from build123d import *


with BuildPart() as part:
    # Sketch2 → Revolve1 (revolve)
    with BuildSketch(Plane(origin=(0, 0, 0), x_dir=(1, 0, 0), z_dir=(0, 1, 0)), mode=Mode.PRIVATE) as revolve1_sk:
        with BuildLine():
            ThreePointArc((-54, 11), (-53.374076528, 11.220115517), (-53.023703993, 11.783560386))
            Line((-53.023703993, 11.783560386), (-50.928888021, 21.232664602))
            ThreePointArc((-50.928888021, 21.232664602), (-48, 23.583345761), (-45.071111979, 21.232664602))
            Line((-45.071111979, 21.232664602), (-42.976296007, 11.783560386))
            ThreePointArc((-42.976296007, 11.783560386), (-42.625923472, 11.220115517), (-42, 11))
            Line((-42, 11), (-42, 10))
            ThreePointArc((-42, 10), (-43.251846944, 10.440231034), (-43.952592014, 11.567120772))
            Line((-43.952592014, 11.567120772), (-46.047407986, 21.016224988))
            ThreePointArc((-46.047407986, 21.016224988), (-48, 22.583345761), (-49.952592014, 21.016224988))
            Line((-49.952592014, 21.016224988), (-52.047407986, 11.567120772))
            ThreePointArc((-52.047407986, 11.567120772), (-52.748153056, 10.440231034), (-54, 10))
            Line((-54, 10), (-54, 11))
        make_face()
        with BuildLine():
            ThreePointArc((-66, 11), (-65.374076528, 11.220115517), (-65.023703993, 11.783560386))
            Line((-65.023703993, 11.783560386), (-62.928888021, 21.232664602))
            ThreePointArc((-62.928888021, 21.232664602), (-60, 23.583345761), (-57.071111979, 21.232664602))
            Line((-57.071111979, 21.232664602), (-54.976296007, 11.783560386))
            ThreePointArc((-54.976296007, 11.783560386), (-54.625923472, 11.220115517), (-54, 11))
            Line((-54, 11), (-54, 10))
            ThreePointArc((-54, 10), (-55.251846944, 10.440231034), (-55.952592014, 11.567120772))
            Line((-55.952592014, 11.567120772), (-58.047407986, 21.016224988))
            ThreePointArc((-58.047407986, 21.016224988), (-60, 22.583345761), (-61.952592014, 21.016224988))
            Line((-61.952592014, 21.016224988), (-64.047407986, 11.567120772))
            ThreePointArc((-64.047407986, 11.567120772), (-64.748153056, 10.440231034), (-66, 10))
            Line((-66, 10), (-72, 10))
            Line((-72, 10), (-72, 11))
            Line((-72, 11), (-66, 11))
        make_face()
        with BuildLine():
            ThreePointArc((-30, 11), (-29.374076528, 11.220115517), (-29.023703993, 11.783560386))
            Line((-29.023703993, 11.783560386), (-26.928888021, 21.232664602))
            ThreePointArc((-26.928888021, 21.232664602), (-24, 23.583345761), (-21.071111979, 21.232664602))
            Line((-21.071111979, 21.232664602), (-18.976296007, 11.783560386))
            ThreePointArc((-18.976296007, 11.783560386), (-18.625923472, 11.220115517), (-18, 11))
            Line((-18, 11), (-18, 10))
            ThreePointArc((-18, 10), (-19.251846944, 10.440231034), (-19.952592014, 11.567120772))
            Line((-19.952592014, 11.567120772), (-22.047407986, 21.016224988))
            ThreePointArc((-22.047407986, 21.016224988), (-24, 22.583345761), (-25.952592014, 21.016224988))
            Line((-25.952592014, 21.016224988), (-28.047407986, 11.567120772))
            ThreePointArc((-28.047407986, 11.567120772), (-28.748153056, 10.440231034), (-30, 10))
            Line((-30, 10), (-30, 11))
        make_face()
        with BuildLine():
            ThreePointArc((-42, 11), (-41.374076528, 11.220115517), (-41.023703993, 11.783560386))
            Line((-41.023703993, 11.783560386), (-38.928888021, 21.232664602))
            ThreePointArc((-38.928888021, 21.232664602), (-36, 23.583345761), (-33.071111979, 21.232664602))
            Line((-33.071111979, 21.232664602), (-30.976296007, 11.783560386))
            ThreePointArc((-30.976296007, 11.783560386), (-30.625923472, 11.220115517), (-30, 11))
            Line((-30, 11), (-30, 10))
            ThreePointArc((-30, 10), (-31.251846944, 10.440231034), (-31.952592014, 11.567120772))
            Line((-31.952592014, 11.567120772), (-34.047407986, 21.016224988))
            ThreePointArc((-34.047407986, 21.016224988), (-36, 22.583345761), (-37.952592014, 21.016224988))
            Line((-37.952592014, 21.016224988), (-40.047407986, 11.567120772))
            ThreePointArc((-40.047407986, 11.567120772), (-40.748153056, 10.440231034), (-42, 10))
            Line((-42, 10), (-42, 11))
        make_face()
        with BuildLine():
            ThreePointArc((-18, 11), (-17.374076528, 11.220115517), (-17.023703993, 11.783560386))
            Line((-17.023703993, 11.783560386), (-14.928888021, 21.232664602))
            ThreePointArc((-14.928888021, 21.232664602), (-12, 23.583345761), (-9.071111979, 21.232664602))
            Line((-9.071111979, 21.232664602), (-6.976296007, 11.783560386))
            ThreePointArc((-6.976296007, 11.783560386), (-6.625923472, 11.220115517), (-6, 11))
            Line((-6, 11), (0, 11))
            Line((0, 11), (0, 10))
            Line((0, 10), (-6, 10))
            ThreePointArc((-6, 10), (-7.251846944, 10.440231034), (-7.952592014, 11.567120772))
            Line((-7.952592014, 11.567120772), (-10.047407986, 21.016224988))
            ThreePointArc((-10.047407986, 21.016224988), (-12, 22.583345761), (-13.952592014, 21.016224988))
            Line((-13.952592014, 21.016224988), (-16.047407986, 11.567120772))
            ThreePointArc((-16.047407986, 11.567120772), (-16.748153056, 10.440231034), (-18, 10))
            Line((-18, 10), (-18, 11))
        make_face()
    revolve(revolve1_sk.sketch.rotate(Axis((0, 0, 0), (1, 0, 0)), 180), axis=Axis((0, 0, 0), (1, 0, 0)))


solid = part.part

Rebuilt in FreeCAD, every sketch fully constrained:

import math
import FreeCAD as App
import Part
import Sketcher

V = App.Vector
Q = App.Units.Quantity

doc = App.newDocument("Part")
body = doc.addObject("PartDesign::Body", "Body")

# Sketch on XZ plane
sketch1 = body.newObject("Sketcher::SketchObject", "Sketch")
sketch1.AttachmentSupport = (doc.getObject("XZ_Plane"), [""])
sketch1.MapMode = "FlatFace"
sketch1.addGeometry([
    Part.ArcOfCircle(Part.Circle(V(-54, -12, 0), V(0, 0, 1), 1), math.radians(13), math.radians(90)),  # 0
    Part.ArcOfCircle(Part.Circle(V(-54, -12, 0), V(0, 0, 1), 1), math.radians(90), math.radians(167)),  # 1
    Part.LineSegment(V(-55, -11.8, 0), V(-57.1, -21.2, 0)),  # 2
    Part.ArcOfCircle(Part.Circle(V(-60, -20.6, 0), V(0, 0, 1), 3), math.radians(-168), math.radians(-12)),  # 3
    Part.LineSegment(V(-62.9, -21.2, 0), V(-65, -11.8, 0)),  # 4
    Part.ArcOfCircle(Part.Circle(V(-66, -12, 0), V(0, 0, 1), 1), math.radians(13), math.radians(90)),  # 5
    Part.LineSegment(V(-66, -11, 0), V(-72, -11, 0)),  # 6
    Part.LineSegment(V(-72, -11, 0), V(-72, -10, 0)),  # 7
    Part.LineSegment(V(-72, -10, 0), V(-66, -10, 0)),  # 8
    Part.ArcOfCircle(Part.Circle(V(-66, -12, 0), V(0, 0, 1), 2), math.radians(13), math.radians(90)),  # 9
    Part.LineSegment(V(-64, -11.6, 0), V(-62, -21, 0)),  # 10
    Part.ArcOfCircle(Part.Circle(V(-60, -20.6, 0), V(0, 0, 1), 2), math.radians(-168), math.radians(-12)),  # 11
    Part.LineSegment(V(-58, -21, 0), V(-56, -11.6, 0)),  # 12
    Part.ArcOfCircle(Part.Circle(V(-54, -12, 0), V(0, 0, 1), 2), math.radians(90), math.radians(167)),  # 13
    Part.ArcOfCircle(Part.Circle(V(-54, -12, 0), V(0, 0, 1), 2), math.radians(13), math.radians(90)),  # 14
    Part.LineSegment(V(-52, -11.6, 0), V(-50, -21, 0)),  # 15
    Part.ArcOfCircle(Part.Circle(V(-48, -20.6, 0), V(0, 0, 1), 2), math.radians(-168), math.radians(-12)),  # 16
    Part.LineSegment(V(-46, -21, 0), V(-44, -11.6, 0)),  # 17
    Part.ArcOfCircle(Part.Circle(V(-42, -12, 0), V(0, 0, 1), 2), math.radians(90), math.radians(167)),  # 18
    Part.ArcOfCircle(Part.Circle(V(-42, -12, 0), V(0, 0, 1), 2), math.radians(13), math.radians(90)),  # 19
    Part.LineSegment(V(-40, -11.6, 0), V(-38, -21, 0)),  # 20
    Part.ArcOfCircle(Part.Circle(V(-36, -20.6, 0), V(0, 0, 1), 2), math.radians(-168), math.radians(-12)),  # 21
    Part.LineSegment(V(-34, -21, 0), V(-32, -11.6, 0)),  # 22
    Part.ArcOfCircle(Part.Circle(V(-30, -12, 0), V(0, 0, 1), 2), math.radians(90), math.radians(167)),  # 23
    Part.ArcOfCircle(Part.Circle(V(-30, -12, 0), V(0, 0, 1), 2), math.radians(13), math.radians(90)),  # 24
    Part.LineSegment(V(-28, -11.6, 0), V(-26, -21, 0)),  # 25
    Part.ArcOfCircle(Part.Circle(V(-24, -20.6, 0), V(0, 0, 1), 2), math.radians(-168), math.radians(-12)),  # 26
    Part.LineSegment(V(-22, -21, 0), V(-20, -11.6, 0)),  # 27
    Part.ArcOfCircle(Part.Circle(V(-18, -12, 0), V(0, 0, 1), 2), math.radians(90), math.radians(167)),  # 28
    Part.ArcOfCircle(Part.Circle(V(-18, -12, 0), V(0, 0, 1), 2), math.radians(13), math.radians(90)),  # 29
    Part.LineSegment(V(-16, -11.6, 0), V(-14, -21, 0)),  # 30
    Part.ArcOfCircle(Part.Circle(V(-12, -20.6, 0), V(0, 0, 1), 2), math.radians(-168), math.radians(-12)),  # 31
    Part.LineSegment(V(-10, -21, 0), V(-8, -11.6, 0)),  # 32
    Part.ArcOfCircle(Part.Circle(V(-6, -12, 0), V(0, 0, 1), 2), math.radians(90), math.radians(167)),  # 33
    Part.LineSegment(V(-6, -10, 0), V(0, -10, 0)),  # 34
    Part.LineSegment(V(0, -10, 0), V(0, -11, 0)),  # 35
    Part.LineSegment(V(0, -11, 0), V(-6, -11, 0)),  # 36
    Part.ArcOfCircle(Part.Circle(V(-6, -12, 0), V(0, 0, 1), 1), math.radians(90), math.radians(167)),  # 37
    Part.LineSegment(V(-7, -11.8, 0), V(-9.1, -21.2, 0)),  # 38
    Part.ArcOfCircle(Part.Circle(V(-12, -20.6, 0), V(0, 0, 1), 3), math.radians(-168), math.radians(-12)),  # 39
    Part.LineSegment(V(-14.9, -21.2, 0), V(-17, -11.8, 0)),  # 40
    Part.ArcOfCircle(Part.Circle(V(-18, -12, 0), V(0, 0, 1), 1), math.radians(13), math.radians(90)),  # 41
    Part.ArcOfCircle(Part.Circle(V(-18, -12, 0), V(0, 0, 1), 1), math.radians(90), math.radians(167)),  # 42
    Part.LineSegment(V(-19, -11.8, 0), V(-21.1, -21.2, 0)),  # 43
    Part.ArcOfCircle(Part.Circle(V(-24, -20.6, 0), V(0, 0, 1), 3), math.radians(-168), math.radians(-12)),  # 44
    Part.LineSegment(V(-26.9, -21.2, 0), V(-29, -11.8, 0)),  # 45
    Part.ArcOfCircle(Part.Circle(V(-30, -12, 0), V(0, 0, 1), 1), math.radians(13), math.radians(90)),  # 46
    Part.ArcOfCircle(Part.Circle(V(-30, -12, 0), V(0, 0, 1), 1), math.radians(90), math.radians(167)),  # 47
    Part.LineSegment(V(-31, -11.8, 0), V(-33.1, -21.2, 0)),  # 48
    Part.ArcOfCircle(Part.Circle(V(-36, -20.6, 0), V(0, 0, 1), 3), math.radians(-168), math.radians(-12)),  # 49
    Part.LineSegment(V(-38.9, -21.2, 0), V(-41, -11.8, 0)),  # 50
    Part.ArcOfCircle(Part.Circle(V(-42, -12, 0), V(0, 0, 1), 1), math.radians(13), math.radians(90)),  # 51
    Part.ArcOfCircle(Part.Circle(V(-42, -12, 0), V(0, 0, 1), 1), math.radians(90), math.radians(167)),  # 52
    Part.LineSegment(V(-43, -11.8, 0), V(-45.1, -21.2, 0)),  # 53
    Part.ArcOfCircle(Part.Circle(V(-48, -20.6, 0), V(0, 0, 1), 3), math.radians(-168), math.radians(-12)),  # 54
    Part.LineSegment(V(-50.9, -21.2, 0), V(-53, -11.8, 0)),  # 55
], False)
sketch1.addConstraint([
    Sketcher.Constraint("Tangent", 0, 2, 1, 1),
    Sketcher.Constraint("Tangent", 1, 2, 2, 1),
    Sketcher.Constraint("Tangent", 2, 2, 3, 2),
    Sketcher.Constraint("Tangent", 3, 1, 4, 1),
    Sketcher.Constraint("Tangent", 4, 2, 5, 1),
    Sketcher.Constraint("Tangent", 5, 2, 6, 1),
    Sketcher.Constraint("Coincident", 6, 2, 7, 1),
    Sketcher.Constraint("Coincident", 7, 2, 8, 1),
    Sketcher.Constraint("Tangent", 8, 2, 9, 2),
    Sketcher.Constraint("Tangent", 9, 1, 10, 1),
    Sketcher.Constraint("Tangent", 10, 2, 11, 1),
    Sketcher.Constraint("Tangent", 11, 2, 12, 1),
    Sketcher.Constraint("Tangent", 12, 2, 13, 2),
    Sketcher.Constraint("Tangent", 13, 1, 14, 2),
    Sketcher.Constraint("Tangent", 14, 1, 15, 1),
    Sketcher.Constraint("Tangent", 15, 2, 16, 1),
    Sketcher.Constraint("Tangent", 16, 2, 17, 1),
    Sketcher.Constraint("Tangent", 17, 2, 18, 2),
    Sketcher.Constraint("Tangent", 18, 1, 19, 2),
    Sketcher.Constraint("Tangent", 19, 1, 20, 1),
    Sketcher.Constraint("Tangent", 20, 2, 21, 1),
    Sketcher.Constraint("Tangent", 21, 2, 22, 1),
    Sketcher.Constraint("Tangent", 22, 2, 23, 2),
    Sketcher.Constraint("Tangent", 23, 1, 24, 2),
    Sketcher.Constraint("Tangent", 24, 1, 25, 1),
    Sketcher.Constraint("Tangent", 25, 2, 26, 1),
    Sketcher.Constraint("Tangent", 26, 2, 27, 1),
    Sketcher.Constraint("Tangent", 27, 2, 28, 2),
    Sketcher.Constraint("Tangent", 28, 1, 29, 2),
    Sketcher.Constraint("Tangent", 29, 1, 30, 1),
    Sketcher.Constraint("Tangent", 30, 2, 31, 1),
    Sketcher.Constraint("Tangent", 31, 2, 32, 1),
    Sketcher.Constraint("Tangent", 32, 2, 33, 2),
    Sketcher.Constraint("Tangent", 33, 1, 34, 1),
    Sketcher.Constraint("Coincident", 34, 2, 35, 1),
    Sketcher.Constraint("Coincident", 35, 2, 36, 1),
    Sketcher.Constraint("Tangent", 36, 2, 37, 1),
    Sketcher.Constraint("Tangent", 37, 2, 38, 1),
    Sketcher.Constraint("Tangent", 38, 2, 39, 2),
    Sketcher.Constraint("Tangent", 39, 1, 40, 1),
    Sketcher.Constraint("Tangent", 40, 2, 41, 1),
    Sketcher.Constraint("Tangent", 41, 2, 42, 1),
    Sketcher.Constraint("Tangent", 42, 2, 43, 1),
    Sketcher.Constraint("Tangent", 43, 2, 44, 2),
    Sketcher.Constraint("Tangent", 44, 1, 45, 1),
    Sketcher.Constraint("Tangent", 45, 2, 46, 1),
    Sketcher.Constraint("Tangent", 46, 2, 47, 1),
    Sketcher.Constraint("Tangent", 47, 2, 48, 1),
    Sketcher.Constraint("Tangent", 48, 2, 49, 2),
    Sketcher.Constraint("Tangent", 49, 1, 50, 1),
    Sketcher.Constraint("Tangent", 50, 2, 51, 1),
    Sketcher.Constraint("Tangent", 51, 2, 52, 1),
    Sketcher.Constraint("Tangent", 52, 2, 53, 1),
    Sketcher.Constraint("Tangent", 53, 2, 54, 2),
    Sketcher.Constraint("Tangent", 54, 1, 55, 1),
    Sketcher.Constraint("Tangent", 55, 2, 0, 1),
    Sketcher.Constraint("Horizontal", 6),
    Sketcher.Constraint("Vertical", 7),
    Sketcher.Constraint("Horizontal", 8),
    Sketcher.Constraint("Horizontal", 34),
    Sketcher.Constraint("Vertical", 35),
    Sketcher.Constraint("Horizontal", 36),
    Sketcher.Constraint("Coincident", 9, 3, 5, 3),
    Sketcher.Constraint("Coincident", 11, 3, 3, 3),
    Sketcher.Constraint("Coincident", 13, 3, 0, 3),
    Sketcher.Constraint("Coincident", 37, 3, 33, 3),
    Sketcher.Constraint("Coincident", 39, 3, 31, 3),
    Sketcher.Constraint("Coincident", 41, 3, 28, 3),
    Sketcher.Constraint("Coincident", 44, 3, 26, 3),
    Sketcher.Constraint("Coincident", 46, 3, 23, 3),
    Sketcher.Constraint("Coincident", 49, 3, 21, 3),
    Sketcher.Constraint("Coincident", 51, 3, 18, 3),
    Sketcher.Constraint("Coincident", 54, 3, 16, 3),
    Sketcher.Constraint("Equal", 0, 1),
    Sketcher.Constraint("Equal", 1, 5),
    Sketcher.Constraint("Equal", 9, 11),
    Sketcher.Constraint("Equal", 11, 13),
    Sketcher.Constraint("Equal", 13, 14),
    Sketcher.Constraint("Equal", 14, 16),
    Sketcher.Constraint("Equal", 16, 18),
    Sketcher.Constraint("Equal", 18, 19),
    Sketcher.Constraint("Equal", 19, 21),
    Sketcher.Constraint("Equal", 21, 23),
    Sketcher.Constraint("Equal", 23, 24),
    Sketcher.Constraint("Equal", 24, 26),
    Sketcher.Constraint("Equal", 26, 28),
    Sketcher.Constraint("Equal", 28, 29),
    Sketcher.Constraint("Equal", 29, 31),
    Sketcher.Constraint("Equal", 31, 33),
    Sketcher.Constraint("Equal", 5, 37),
    Sketcher.Constraint("Equal", 3, 39),
    Sketcher.Constraint("Equal", 37, 41),
    Sketcher.Constraint("Equal", 41, 42),
    Sketcher.Constraint("Equal", 39, 44),
    Sketcher.Constraint("Equal", 42, 46),
    Sketcher.Constraint("Equal", 46, 47),
    Sketcher.Constraint("Equal", 44, 49),
    Sketcher.Constraint("Equal", 47, 51),
    Sketcher.Constraint("Equal", 51, 52),
    Sketcher.Constraint("Equal", 49, 54),
    Sketcher.Constraint("PointOnObject", 34, 2, -2),
    Sketcher.Constraint("Parallel", 4, 10),
    Sketcher.Constraint("Parallel", 10, 15),
    Sketcher.Constraint("Parallel", 12, 17),
    Sketcher.Constraint("Parallel", 15, 20),
    Sketcher.Constraint("Parallel", 17, 22),
    Sketcher.Constraint("Parallel", 20, 25),
    Sketcher.Constraint("Parallel", 22, 27),
    Sketcher.Constraint("Parallel", 25, 30),
    Sketcher.Constraint("Parallel", 27, 32),
    Sketcher.Constraint("Horizontal", 1, 3, 5, 3),
    Sketcher.Constraint("Horizontal", 11, 3, 16, 3),
    Sketcher.Constraint("Horizontal", 14, 3, 18, 3),
    Sketcher.Constraint("Horizontal", 16, 3, 21, 3),
    Sketcher.Constraint("Horizontal", 19, 3, 23, 3),
    Sketcher.Constraint("Horizontal", 21, 3, 26, 3),
    Sketcher.Constraint("Horizontal", 24, 3, 28, 3),
    Sketcher.Constraint("Horizontal", 26, 3, 31, 3),
    Sketcher.Constraint("Horizontal", 29, 3, 33, 3),
    Sketcher.Constraint("Horizontal", 2, 2, 3, 1),
    Sketcher.Constraint("Vertical", 14, 3, 0, 2),
    Sketcher.Constraint("Vertical", 0, 2, 13, 1),
    Sketcher.Constraint("Vertical", 52, 3, 18, 1),
    Sketcher.Constraint("Vertical", 47, 3, 23, 1),
    Sketcher.Constraint("Vertical", 42, 3, 28, 1),
    Sketcher.Constraint("Vertical", 28, 1, 41, 2),
    Sketcher.Constraint("Vertical", 23, 1, 46, 2),
    Sketcher.Constraint("Vertical", 18, 1, 51, 2),
    Sketcher.Constraint("Equal", 8, 34),
    Sketcher.Constraint("Radius", 0, 1.0),
    Sketcher.Constraint("Radius", 3, 3.0),
    Sketcher.Constraint("DistanceX", 6, 2, 6, 1, 6.0),
    Sketcher.Constraint("DistanceX", 0, 3, -1, 1, 54.0),
    Sketcher.Constraint("DistanceY", 0, 3, -1, 1, 12.0),
    Sketcher.Constraint("Angle", 2, Q("-102.5 deg")),
])
revolution = body.newObject("PartDesign::Revolution", "Revolution")
revolution.Profile = sketch1
revolution.ReferenceAxis = (sketch1, ["H_Axis"])
revolution.Angle = 360

doc.recompute()
